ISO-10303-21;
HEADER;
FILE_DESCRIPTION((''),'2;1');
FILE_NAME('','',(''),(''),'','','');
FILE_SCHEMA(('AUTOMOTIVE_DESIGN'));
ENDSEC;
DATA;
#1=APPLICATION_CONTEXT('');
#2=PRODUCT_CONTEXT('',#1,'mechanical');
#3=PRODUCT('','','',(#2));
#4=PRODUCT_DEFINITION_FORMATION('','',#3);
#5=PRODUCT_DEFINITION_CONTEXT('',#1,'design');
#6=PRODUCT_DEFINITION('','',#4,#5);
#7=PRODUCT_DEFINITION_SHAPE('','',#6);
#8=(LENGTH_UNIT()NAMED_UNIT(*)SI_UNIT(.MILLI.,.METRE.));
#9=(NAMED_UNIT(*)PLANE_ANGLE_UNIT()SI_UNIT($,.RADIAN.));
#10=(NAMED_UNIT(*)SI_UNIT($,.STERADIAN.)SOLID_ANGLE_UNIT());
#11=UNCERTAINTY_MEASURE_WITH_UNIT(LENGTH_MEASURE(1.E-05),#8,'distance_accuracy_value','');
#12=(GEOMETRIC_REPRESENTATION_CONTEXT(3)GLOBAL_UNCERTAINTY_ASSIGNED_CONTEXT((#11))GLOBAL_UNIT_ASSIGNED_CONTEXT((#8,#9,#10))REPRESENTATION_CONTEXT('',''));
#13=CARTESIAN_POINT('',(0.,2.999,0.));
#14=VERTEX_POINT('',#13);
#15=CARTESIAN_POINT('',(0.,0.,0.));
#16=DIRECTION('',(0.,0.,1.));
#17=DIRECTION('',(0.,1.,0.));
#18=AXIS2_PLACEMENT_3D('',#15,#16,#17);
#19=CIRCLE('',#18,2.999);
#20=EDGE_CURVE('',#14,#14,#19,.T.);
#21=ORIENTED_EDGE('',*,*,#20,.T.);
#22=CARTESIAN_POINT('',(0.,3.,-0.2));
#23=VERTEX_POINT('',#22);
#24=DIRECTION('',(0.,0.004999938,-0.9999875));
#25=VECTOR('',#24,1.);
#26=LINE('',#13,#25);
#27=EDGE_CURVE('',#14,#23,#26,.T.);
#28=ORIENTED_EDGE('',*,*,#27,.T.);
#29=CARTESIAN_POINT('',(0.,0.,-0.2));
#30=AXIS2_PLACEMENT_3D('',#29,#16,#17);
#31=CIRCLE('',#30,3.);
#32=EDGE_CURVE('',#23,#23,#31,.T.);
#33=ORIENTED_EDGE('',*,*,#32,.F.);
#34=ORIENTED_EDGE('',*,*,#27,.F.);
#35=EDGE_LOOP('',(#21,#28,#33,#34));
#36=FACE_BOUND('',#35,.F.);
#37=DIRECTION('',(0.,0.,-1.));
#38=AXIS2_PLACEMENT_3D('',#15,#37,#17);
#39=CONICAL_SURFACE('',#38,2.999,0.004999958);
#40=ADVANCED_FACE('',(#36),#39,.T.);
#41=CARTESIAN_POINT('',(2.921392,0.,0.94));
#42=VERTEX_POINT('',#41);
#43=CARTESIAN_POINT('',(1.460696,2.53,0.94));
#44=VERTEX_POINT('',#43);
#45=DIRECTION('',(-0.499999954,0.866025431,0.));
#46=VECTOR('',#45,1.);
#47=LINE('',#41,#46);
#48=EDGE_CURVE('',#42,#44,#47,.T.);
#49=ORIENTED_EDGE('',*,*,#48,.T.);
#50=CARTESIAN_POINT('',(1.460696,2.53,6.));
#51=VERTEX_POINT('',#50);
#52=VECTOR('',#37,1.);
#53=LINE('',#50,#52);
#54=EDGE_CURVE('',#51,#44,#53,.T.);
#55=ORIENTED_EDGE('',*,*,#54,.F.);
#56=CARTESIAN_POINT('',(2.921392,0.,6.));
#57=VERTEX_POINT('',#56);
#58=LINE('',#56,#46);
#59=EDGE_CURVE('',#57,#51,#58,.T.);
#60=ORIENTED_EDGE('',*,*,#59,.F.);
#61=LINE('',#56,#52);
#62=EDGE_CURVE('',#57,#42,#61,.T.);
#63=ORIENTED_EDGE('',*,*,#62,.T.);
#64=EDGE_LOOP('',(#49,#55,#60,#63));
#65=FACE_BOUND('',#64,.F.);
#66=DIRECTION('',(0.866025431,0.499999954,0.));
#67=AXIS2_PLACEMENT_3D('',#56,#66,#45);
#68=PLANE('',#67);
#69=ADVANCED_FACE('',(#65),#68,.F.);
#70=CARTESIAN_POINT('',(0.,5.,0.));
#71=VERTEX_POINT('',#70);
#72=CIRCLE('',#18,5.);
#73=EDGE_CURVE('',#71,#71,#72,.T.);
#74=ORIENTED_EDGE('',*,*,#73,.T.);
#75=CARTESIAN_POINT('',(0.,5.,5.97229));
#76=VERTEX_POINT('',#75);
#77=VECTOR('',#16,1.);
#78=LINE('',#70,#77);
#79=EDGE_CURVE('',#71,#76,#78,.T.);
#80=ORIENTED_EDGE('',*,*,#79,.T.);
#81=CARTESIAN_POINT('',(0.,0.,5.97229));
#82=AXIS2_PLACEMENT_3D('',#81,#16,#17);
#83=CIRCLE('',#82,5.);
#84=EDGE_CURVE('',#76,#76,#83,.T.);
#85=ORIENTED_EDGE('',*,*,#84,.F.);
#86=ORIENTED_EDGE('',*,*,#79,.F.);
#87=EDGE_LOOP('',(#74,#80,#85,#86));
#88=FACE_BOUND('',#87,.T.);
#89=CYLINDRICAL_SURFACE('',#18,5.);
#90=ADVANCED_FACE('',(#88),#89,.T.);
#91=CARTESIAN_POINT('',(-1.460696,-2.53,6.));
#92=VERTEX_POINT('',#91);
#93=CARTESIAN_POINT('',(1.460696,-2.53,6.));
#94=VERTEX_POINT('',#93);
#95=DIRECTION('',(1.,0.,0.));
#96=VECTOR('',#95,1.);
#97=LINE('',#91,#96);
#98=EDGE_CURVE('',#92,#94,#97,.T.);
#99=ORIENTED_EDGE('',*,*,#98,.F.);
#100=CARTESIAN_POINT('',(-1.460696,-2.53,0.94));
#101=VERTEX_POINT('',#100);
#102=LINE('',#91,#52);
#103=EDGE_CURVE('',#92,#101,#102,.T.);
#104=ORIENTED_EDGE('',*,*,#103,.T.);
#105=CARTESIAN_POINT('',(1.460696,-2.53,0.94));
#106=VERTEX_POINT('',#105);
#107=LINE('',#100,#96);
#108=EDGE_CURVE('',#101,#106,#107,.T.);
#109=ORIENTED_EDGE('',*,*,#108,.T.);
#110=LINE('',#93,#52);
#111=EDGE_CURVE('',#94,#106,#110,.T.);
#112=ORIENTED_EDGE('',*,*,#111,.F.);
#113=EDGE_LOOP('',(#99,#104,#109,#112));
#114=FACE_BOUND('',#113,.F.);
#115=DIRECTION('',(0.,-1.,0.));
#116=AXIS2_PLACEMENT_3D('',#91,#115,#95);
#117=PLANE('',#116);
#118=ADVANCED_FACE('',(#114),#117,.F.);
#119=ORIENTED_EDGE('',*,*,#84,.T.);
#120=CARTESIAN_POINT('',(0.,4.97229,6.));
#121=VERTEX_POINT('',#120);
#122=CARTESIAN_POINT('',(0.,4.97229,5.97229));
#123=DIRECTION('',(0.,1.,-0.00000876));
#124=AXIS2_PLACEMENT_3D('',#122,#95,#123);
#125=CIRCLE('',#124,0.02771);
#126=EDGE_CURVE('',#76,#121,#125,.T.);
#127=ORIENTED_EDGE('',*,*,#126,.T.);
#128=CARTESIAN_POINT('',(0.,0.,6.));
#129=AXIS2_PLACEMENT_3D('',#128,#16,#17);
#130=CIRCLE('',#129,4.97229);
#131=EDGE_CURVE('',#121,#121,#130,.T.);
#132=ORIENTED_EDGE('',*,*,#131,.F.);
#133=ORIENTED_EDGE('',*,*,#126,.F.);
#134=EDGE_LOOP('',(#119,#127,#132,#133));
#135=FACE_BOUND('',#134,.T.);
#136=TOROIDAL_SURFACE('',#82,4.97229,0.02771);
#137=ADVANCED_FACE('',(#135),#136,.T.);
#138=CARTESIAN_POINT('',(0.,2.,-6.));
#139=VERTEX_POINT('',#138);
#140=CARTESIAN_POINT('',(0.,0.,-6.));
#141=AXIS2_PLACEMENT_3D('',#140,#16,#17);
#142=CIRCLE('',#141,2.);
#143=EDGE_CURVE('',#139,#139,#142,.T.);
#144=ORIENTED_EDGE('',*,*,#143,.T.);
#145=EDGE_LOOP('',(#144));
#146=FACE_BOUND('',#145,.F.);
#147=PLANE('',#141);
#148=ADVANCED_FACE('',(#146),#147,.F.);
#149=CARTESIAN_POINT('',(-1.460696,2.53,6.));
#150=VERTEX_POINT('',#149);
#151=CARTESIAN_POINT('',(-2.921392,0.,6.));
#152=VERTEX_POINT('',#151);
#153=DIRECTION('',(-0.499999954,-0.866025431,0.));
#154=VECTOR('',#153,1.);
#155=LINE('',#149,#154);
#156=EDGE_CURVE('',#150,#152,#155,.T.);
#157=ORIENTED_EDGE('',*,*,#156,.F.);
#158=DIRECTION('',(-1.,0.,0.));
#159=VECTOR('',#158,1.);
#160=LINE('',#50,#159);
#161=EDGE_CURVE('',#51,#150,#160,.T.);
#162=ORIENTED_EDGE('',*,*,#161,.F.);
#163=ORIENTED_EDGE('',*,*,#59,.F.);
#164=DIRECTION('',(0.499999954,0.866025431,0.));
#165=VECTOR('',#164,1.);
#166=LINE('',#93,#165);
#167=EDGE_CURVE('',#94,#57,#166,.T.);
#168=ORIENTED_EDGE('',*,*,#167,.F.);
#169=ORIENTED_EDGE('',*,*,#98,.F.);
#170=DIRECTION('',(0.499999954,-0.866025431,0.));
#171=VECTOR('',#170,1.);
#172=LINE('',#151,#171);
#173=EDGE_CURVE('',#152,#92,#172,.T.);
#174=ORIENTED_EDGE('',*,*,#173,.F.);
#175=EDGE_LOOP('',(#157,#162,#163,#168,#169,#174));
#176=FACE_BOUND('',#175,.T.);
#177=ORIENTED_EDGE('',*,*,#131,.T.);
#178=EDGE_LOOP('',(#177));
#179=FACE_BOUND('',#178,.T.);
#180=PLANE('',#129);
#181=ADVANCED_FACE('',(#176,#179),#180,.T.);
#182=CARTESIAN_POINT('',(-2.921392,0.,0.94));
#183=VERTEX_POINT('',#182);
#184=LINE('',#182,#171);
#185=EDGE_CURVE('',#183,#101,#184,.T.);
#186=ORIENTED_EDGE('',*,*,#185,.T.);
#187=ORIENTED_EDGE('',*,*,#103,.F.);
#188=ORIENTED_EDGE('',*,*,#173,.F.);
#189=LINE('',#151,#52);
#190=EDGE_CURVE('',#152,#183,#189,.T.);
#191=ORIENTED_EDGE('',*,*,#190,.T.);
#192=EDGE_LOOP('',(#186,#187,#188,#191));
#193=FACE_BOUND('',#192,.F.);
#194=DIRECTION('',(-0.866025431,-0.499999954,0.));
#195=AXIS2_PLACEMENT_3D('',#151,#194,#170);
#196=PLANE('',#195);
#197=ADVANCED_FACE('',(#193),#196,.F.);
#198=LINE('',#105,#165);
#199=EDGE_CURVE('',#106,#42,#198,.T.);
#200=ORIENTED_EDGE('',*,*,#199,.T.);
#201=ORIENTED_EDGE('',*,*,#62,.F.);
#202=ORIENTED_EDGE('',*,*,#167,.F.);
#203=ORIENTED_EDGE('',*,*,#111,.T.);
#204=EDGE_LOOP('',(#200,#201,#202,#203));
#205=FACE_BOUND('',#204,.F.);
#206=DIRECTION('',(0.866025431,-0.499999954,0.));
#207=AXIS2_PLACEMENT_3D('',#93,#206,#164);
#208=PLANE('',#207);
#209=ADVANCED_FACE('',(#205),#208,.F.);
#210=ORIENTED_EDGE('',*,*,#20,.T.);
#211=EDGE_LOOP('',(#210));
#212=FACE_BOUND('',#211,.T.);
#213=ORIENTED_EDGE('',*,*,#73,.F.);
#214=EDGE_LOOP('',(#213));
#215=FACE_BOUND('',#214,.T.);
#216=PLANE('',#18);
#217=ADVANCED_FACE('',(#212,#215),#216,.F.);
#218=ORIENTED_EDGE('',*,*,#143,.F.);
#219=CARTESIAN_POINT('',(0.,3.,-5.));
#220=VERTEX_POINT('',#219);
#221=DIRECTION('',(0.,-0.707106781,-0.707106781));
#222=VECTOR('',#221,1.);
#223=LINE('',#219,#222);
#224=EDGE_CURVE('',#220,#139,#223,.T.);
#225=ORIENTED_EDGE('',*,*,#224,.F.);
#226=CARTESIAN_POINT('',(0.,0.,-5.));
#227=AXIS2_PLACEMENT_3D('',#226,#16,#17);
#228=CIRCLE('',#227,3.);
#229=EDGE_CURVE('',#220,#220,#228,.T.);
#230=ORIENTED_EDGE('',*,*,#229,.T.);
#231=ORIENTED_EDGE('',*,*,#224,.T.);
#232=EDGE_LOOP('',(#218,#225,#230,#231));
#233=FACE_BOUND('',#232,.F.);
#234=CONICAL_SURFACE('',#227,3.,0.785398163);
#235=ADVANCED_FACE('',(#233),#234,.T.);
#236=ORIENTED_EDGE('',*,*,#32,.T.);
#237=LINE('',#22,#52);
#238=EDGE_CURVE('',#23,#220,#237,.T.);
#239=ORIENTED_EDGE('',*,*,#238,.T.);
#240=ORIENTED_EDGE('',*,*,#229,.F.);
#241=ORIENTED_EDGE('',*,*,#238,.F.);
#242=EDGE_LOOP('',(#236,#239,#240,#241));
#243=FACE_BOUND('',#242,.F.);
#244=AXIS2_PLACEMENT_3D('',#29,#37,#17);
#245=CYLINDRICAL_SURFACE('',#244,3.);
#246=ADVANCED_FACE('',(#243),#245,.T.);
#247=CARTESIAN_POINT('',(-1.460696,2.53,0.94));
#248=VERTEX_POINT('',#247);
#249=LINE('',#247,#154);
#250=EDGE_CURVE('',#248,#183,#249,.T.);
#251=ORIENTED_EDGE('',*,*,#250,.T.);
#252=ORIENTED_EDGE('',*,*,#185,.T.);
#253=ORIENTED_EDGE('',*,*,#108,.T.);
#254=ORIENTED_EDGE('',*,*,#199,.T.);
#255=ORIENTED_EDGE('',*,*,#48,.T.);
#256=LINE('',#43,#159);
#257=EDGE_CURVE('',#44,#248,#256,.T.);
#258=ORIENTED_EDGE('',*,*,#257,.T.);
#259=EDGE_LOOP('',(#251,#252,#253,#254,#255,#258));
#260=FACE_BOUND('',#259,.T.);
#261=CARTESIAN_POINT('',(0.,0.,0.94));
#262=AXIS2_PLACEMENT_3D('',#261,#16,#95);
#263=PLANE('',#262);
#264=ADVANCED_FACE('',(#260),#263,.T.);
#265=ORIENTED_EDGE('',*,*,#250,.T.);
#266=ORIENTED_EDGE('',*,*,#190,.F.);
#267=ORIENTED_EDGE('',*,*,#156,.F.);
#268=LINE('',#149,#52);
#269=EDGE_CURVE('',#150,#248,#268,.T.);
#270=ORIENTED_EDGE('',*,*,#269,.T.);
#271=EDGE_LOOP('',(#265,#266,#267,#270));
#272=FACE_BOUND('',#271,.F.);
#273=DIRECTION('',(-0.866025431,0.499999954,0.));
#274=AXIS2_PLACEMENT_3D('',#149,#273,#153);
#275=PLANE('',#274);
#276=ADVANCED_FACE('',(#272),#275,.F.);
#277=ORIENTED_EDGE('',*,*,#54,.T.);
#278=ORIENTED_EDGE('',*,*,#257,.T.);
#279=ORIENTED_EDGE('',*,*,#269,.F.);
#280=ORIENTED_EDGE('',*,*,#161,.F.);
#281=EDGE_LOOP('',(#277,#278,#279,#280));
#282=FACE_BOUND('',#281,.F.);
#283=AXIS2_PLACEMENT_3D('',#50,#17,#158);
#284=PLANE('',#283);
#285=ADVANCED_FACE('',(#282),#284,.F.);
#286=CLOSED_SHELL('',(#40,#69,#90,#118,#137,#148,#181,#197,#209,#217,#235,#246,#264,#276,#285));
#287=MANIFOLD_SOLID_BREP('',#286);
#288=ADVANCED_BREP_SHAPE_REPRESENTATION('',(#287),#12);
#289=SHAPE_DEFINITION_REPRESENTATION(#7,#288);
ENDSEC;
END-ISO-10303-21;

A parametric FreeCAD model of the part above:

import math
import FreeCAD as App
import Part
import Sketcher
Q = App.Units.Quantity


def add_polygon(sketch, points):
    """Adds a closed chain of lines whose ends are joined by coincident constraints."""
    first, n = sketch.GeometryCount, len(points)
    for a, b in zip(points, points[1:] + points[:1]):
        sketch.addGeometry(Part.LineSegment(App.Vector(*a, 0), App.Vector(*b, 0)), False)
    for i in range(n):
        sketch.addConstraint(Sketcher.Constraint("Coincident", first + i, 2, first + (i + 1) % n, 1))

doc = App.newDocument("Part")
params = doc.addObject("Spreadsheet::Sheet", "Params")
for row, (alias, value) in enumerate([
    ("sketch1_width", "2 mm"),
    ("sketch1_height", "12 mm"),
    ("sketch1_height2", "4.8 mm"),
    ("revolution_angle", "360 deg"),
    ("pocket1_length", "5.06 mm"),
], start=1):
    params.set(f"A{row}", alias)
    params.set(f"B{row}", "=" + value)
    params.setAlias(f"B{row}", alias)

body = doc.addObject("PartDesign::Body", "Body")

# Sketch on YZ plane
sketch1 = body.newObject("Sketcher::SketchObject", "Sketch")
sketch1.AttachmentSupport = (doc.getObject("YZ_Plane"), [""])
sketch1.MapMode = "FlatFace"
sketch1.addGeometry(Part.LineSegment(App.Vector(2.999, 0, 0), App.Vector(5, 0, 0)), False)
sketch1.addGeometry(Part.LineSegment(App.Vector(5, 0, 0), App.Vector(5, 5.97229, 0)), False)
sketch1.addGeometry(Part.ArcOfCircle(Part.Circle(App.Vector(4.97229, 5.97229, 0), App.Vector(0, 0, 1), 0.02771), math.radians(-0.000502), math.radians(90.000502)), False)
sketch1.addGeometry(Part.LineSegment(App.Vector(4.97229, 6, 0), App.Vector(0, 6, 0)), False)
sketch1.addGeometry(Part.LineSegment(App.Vector(0, 6, 0), App.Vector(0, -6, 0)), False)
sketch1.addGeometry(Part.LineSegment(App.Vector(0, -6, 0), App.Vector(2, -6, 0)), False)
sketch1.addGeometry(Part.LineSegment(App.Vector(2, -6, 0), App.Vector(3, -5, 0)), False)
sketch1.addGeometry(Part.LineSegment(App.Vector(3, -5, 0), App.Vector(3, -0.2, 0)), False)
sketch1.addGeometry(Part.LineSegment(App.Vector(3, -0.2, 0), App.Vector(2.999, 0, 0)), False)
sketch1.addConstraint(Sketcher.Constraint("Coincident", 0, 2, 1, 1))
sketch1.addConstraint(Sketcher.Constraint("Coincident", 1, 2, 2, 1))
sketch1.addConstraint(Sketcher.Constraint("Coincident", 2, 2, 3, 1))
sketch1.addConstraint(Sketcher.Constraint("Coincident", 3, 2, 4, 1))
sketch1.addConstraint(Sketcher.Constraint("Coincident", 4, 2, 5, 1))
sketch1.addConstraint(Sketcher.Constraint("Coincident", 5, 2, 6, 1))
sketch1.addConstraint(Sketcher.Constraint("Coincident", 6, 2, 7, 1))
sketch1.addConstraint(Sketcher.Constraint("Coincident", 7, 2, 8, 1))
sketch1.addConstraint(Sketcher.Constraint("Coincident", 8, 2, 0, 1))
sketch1.addConstraint(Sketcher.Constraint("Horizontal", 0))
sketch1.addConstraint(Sketcher.Constraint("Vertical", 1))
sketch1.addConstraint(Sketcher.Constraint("Horizontal", 3))
sketch1.addConstraint(Sketcher.Constraint("Vertical", 4))
sketch1.addConstraint(Sketcher.Constraint("Horizontal", 5))
sketch1.addConstraint(Sketcher.Constraint("Vertical", 7))
sketch1.addConstraint(Sketcher.Constraint("Symmetric", 3, 2, 4, 2, -1, 1))
sketch1.addConstraint(Sketcher.Constraint("PointOnObject", 0, 2, -1))
sketch1.addConstraint(Sketcher.Constraint("Horizontal", 2, 3, 1, 2))
sketch1.addConstraint(Sketcher.Constraint("DistanceX", 5, 1, 5, 2, 2.0))
sketch1.addConstraint(Sketcher.Constraint("DistanceY", 4, 2, 4, 1, 12.0))
sketch1.addConstraint(Sketcher.Constraint("Angle", 6, Q("45 deg")))
sketch1.addConstraint(Sketcher.Constraint("DistanceY", 7, 1, 7, 2, 4.8))
sketch1.addConstraint(Sketcher.Constraint("DistanceX", -1, 1, 0, 2, 5.0))
sketch1.addConstraint(Sketcher.Constraint("DistanceX", -1, 1, 6, 2, 3.0))
sketch1.addConstraint(Sketcher.Constraint("DistanceX", 0, 1, 0, 2, 2.001))
sketch1.addConstraint(Sketcher.Constraint("Radius", 2, 0.02771))
sketch1.addConstraint(Sketcher.Constraint("DistanceX", 3, 2, 3, 1, 4.97229))
sketch1.setExpression("Constraints[18]", "Params.sketch1_width")
sketch1.setExpression("Constraints[19]", "Params.sketch1_height")
sketch1.setExpression("Constraints[21]", "Params.sketch1_height2")
revolution = body.newObject("PartDesign::Revolution", "Revolution")
revolution.Profile = sketch1
revolution.ReferenceAxis = (sketch1, ["V_Axis"])
revolution.setExpression("Angle", "Params.revolution_angle")

# Sketch on XY plane
sketch2 = body.newObject("Sketcher::SketchObject", "Sketch001")
sketch2.AttachmentSupport = (doc.getObject("XY_Plane"), [""])
sketch2.MapMode = "FlatFace"
sketch2.AttachmentOffset = App.Placement(App.Vector(0, 0, 6), App.Rotation())
add_polygon(sketch2, [(2.921392, 0), (1.460696, 2.53), (-1.460696, 2.53), (-2.921392, 0), (-1.460696, -2.53), (1.460696, -2.53)])  # lines 0-5
sketch2.addConstraint(Sketcher.Constraint("Horizontal", 1))
sketch2.addConstraint(Sketcher.Constraint("Horizontal", 4))
sketch2.addConstraint(Sketcher.Constraint("Symmetric", 0, 2, 3, 2, -1, 1))
sketch2.addConstraint(Sketcher.Constraint("Symmetric", 2, 2, 5, 2, -1, 1))
sketch2.addConstraint(Sketcher.Constraint("PointOnObject", 2, 2, -1))
sketch2.addConstraint(Sketcher.Constraint("Parallel", 2, 5))
sketch2.addConstraint(Sketcher.Constraint("Vertical", 1, 2, 3, 2))
sketch2.addConstraint(Sketcher.Constraint("Angle", 0, Q("119.999997 deg")))
sketch2.addConstraint(Sketcher.Constraint("DistanceY", -1, 1, 0, 2, 2.53))
sketch2.addConstraint(Sketcher.Constraint("DistanceX", 1, 2, 1, 1, 2.921392))
pocket1 = body.newObject("PartDesign::Pocket", "Pocket")
pocket1.Profile = sketch2
pocket1.setExpression("Length", "Params.pocket1_length")

doc.recompute()
